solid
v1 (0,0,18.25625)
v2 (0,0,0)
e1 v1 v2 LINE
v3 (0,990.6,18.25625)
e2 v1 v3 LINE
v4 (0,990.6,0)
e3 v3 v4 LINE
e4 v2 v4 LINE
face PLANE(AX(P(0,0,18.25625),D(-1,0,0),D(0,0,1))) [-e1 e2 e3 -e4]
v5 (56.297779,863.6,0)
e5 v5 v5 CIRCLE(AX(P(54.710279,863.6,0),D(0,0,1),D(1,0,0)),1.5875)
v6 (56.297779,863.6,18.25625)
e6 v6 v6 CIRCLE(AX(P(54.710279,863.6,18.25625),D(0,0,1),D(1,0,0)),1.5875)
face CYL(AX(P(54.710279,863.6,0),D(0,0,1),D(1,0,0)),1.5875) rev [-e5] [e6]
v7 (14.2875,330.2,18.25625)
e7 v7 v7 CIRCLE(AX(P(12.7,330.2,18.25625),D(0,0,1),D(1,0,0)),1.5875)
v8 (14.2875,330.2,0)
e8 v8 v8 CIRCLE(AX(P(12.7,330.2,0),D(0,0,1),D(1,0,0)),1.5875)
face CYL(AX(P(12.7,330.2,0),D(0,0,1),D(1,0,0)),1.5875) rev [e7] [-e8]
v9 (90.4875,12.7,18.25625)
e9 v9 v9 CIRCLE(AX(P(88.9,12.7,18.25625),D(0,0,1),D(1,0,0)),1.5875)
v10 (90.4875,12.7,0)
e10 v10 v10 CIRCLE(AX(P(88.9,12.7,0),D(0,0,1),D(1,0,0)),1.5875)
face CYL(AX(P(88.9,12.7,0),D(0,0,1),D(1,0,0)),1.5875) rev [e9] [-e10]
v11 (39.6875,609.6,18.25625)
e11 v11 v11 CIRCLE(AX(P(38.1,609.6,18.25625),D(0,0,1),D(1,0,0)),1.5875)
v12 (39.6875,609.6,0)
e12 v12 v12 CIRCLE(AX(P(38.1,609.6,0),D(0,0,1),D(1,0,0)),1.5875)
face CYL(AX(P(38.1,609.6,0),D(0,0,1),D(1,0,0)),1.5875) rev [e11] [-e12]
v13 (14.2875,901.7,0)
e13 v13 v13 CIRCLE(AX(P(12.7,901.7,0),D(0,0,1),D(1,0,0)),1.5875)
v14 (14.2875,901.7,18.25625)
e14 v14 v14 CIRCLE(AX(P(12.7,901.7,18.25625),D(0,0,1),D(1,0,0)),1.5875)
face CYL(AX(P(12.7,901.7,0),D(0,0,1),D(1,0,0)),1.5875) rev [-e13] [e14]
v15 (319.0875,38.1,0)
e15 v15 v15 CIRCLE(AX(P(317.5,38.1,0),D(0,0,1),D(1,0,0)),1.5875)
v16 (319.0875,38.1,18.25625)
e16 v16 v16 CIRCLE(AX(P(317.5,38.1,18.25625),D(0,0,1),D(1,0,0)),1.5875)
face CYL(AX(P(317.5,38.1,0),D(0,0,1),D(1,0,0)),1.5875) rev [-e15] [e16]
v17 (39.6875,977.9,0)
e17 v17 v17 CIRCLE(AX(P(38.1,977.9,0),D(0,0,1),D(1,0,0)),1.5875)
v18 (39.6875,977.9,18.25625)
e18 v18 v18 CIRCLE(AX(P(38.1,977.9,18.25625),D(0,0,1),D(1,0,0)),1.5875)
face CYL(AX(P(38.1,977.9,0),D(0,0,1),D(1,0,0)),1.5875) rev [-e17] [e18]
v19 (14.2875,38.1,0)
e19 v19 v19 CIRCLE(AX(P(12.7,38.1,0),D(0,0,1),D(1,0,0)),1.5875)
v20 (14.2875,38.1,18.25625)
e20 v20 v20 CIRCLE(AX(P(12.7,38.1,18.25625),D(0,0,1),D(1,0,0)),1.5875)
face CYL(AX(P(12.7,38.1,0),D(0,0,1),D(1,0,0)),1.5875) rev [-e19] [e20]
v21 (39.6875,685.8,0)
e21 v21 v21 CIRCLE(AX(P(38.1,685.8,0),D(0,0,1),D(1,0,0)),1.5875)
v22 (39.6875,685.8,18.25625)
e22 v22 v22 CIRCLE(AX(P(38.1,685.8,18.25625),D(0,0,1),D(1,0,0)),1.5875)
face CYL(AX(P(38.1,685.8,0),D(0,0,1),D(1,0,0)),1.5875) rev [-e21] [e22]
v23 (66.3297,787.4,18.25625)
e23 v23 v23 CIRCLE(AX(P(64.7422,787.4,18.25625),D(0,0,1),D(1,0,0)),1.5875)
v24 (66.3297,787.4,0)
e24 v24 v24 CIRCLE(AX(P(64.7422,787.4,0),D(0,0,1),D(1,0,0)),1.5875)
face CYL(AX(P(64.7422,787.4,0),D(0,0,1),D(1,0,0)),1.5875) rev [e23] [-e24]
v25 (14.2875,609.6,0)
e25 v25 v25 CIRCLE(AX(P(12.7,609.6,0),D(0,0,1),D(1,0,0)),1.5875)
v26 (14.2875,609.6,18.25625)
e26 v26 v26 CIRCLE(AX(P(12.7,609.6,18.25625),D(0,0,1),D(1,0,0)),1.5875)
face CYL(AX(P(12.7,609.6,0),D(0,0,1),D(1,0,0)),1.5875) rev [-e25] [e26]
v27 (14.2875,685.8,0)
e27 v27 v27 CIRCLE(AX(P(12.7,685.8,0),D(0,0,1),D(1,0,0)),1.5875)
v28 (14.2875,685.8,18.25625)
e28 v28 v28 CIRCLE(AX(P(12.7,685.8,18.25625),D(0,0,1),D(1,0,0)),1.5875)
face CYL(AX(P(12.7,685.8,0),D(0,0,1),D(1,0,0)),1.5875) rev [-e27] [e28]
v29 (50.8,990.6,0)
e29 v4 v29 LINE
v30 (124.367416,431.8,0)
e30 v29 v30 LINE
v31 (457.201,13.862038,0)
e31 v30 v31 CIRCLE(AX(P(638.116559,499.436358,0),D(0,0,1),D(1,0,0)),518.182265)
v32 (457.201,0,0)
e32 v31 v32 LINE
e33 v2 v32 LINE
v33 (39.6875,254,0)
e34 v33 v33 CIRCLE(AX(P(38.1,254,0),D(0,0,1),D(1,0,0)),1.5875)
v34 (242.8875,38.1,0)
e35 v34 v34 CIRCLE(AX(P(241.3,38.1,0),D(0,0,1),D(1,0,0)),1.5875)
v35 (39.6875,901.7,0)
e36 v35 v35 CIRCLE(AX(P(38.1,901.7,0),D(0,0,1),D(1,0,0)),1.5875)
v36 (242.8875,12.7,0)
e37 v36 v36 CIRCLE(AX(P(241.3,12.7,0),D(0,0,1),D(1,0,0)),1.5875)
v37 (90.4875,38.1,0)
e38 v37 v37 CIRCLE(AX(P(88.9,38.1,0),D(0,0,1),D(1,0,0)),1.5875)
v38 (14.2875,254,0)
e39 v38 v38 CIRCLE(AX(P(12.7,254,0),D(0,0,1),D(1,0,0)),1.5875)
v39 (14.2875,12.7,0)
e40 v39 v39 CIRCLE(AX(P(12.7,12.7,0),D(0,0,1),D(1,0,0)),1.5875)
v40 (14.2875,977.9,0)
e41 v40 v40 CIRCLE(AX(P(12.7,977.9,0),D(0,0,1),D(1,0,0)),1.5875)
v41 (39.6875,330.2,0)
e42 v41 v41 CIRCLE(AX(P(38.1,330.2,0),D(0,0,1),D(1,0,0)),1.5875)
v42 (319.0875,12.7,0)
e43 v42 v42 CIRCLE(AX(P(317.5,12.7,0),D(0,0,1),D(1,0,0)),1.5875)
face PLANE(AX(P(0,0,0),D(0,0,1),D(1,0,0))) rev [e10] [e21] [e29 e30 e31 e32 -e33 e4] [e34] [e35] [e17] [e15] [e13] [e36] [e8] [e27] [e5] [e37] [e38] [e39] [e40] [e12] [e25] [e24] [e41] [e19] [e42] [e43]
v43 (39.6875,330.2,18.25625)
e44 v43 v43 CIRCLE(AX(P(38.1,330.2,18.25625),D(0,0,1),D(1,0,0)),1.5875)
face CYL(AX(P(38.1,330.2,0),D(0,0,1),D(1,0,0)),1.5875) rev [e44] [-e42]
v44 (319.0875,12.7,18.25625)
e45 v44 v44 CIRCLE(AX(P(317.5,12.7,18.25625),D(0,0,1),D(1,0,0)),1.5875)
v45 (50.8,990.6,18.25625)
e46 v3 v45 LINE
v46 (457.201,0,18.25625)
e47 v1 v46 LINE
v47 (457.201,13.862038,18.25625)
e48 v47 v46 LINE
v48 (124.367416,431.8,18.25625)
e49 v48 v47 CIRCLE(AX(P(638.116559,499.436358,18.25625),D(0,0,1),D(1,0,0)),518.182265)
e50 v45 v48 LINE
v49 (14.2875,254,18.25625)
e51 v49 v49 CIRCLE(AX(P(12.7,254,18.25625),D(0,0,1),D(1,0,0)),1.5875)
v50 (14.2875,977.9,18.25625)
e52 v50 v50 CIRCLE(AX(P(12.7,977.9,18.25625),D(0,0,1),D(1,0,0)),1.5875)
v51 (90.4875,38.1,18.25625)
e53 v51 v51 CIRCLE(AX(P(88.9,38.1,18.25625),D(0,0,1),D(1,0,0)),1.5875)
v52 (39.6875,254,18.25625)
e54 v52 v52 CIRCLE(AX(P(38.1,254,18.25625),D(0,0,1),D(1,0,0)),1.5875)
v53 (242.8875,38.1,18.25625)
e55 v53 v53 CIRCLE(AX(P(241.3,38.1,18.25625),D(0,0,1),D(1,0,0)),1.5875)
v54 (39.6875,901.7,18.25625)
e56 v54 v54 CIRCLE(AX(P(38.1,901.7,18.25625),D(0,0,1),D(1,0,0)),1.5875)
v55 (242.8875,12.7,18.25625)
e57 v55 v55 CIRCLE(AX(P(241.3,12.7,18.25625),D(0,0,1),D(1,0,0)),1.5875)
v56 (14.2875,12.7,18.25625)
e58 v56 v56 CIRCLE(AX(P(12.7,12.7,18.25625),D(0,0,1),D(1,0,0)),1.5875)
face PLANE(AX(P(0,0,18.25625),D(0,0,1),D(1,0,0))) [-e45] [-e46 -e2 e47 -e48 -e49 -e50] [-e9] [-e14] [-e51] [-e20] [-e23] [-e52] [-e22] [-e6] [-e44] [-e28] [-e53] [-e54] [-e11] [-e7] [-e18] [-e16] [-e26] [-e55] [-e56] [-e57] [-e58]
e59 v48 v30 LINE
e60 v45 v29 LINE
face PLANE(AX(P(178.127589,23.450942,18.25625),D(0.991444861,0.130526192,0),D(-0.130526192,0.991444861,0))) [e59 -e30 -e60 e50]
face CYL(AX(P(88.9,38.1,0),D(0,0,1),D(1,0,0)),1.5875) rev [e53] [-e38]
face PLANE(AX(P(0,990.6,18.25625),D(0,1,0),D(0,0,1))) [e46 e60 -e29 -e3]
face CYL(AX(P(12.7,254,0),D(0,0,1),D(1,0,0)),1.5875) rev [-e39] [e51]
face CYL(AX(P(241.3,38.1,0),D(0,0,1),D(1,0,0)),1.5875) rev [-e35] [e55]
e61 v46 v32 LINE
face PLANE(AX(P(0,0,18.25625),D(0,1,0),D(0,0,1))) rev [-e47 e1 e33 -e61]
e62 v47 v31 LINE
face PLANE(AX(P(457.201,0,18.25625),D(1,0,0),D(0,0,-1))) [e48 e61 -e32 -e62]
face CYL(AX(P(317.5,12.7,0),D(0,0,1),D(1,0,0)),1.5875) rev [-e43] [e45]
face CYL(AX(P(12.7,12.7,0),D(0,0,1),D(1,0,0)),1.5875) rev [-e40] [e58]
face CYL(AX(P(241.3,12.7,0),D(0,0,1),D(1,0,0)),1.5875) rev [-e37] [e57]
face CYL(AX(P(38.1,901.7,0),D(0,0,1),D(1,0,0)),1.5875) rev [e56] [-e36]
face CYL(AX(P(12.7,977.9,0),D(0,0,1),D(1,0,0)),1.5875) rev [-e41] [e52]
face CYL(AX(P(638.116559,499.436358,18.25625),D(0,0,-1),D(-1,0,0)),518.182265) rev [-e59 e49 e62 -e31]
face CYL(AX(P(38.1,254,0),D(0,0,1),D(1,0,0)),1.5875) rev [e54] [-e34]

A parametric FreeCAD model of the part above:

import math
import FreeCAD as App
import Part
import Sketcher

V = App.Vector
Q = App.Units.Quantity

doc = App.newDocument("Part")
params = doc.addObject("Spreadsheet::Sheet", "Params")
for row, (alias, value) in enumerate([
    ("sketch1_width", "2 in"),
    ("sketch1_height", "39 in"),
    ("pad1_length", "0.71875 in"),
    ("sketch2_diameter", "0.125 in"),
    ("sketch3_diameter", "0.125 in"),
], start=1):
    params.set(f"A{row}", alias)
    params.set(f"B{row}", "=" + value)
    params.setAlias(f"B{row}", alias)

body = doc.addObject("PartDesign::Body", "Body")

# Sketch on XY plane
sketch1 = body.newObject("Sketcher::SketchObject", "Sketch")
sketch1.AttachmentSupport = (doc.getObject("XY_Plane"), [""])
sketch1.MapMode = "FlatFace"
sketch1.addGeometry(Part.LineSegment(V(0, 990.6, 0), V(0, 0, 0)), False)
sketch1.addGeometry(Part.LineSegment(V(0, 0, 0), V(457.201, 0, 0)), False)
sketch1.addGeometry(Part.LineSegment(V(457.201, 0, 0), V(457.201, 13.862038, 0)), False)
sketch1.addGeometry(Part.ArcOfCircle(Part.Circle(V(638.116559, 499.436358, 0), V(0, 0, 1), 518.182265), math.radians(-172.5), math.radians(-110.434416)), False)
sketch1.addGeometry(Part.LineSegment(V(124.367416, 431.8, 0), V(50.8, 990.6, 0)), False)
sketch1.addGeometry(Part.LineSegment(V(50.8, 990.6, 0), V(0, 990.6, 0)), False)
sketch1.addConstraint(Sketcher.Constraint("Coincident", 0, 2, 1, 1))
sketch1.addConstraint(Sketcher.Constraint("Coincident", 1, 2, 2, 1))
sketch1.addConstraint(Sketcher.Constraint("Coincident", 2, 2, 3, 2))
sketch1.addConstraint(Sketcher.Constraint("Tangent", 3, 1, 4, 1))
sketch1.addConstraint(Sketcher.Constraint("Coincident", 4, 2, 5, 1))
sketch1.addConstraint(Sketcher.Constraint("Coincident", 5, 2, 0, 1))
sketch1.addConstraint(Sketcher.Constraint("Vertical", 0))
sketch1.addConstraint(Sketcher.Constraint("Horizontal", 1))
sketch1.addConstraint(Sketcher.Constraint("Vertical", 2))
sketch1.addConstraint(Sketcher.Constraint("Horizontal", 5))
sketch1.addConstraint(Sketcher.Constraint("Coincident", 0, 2, -1, 1))
sketch1.addConstraint(Sketcher.Constraint("DistanceX", 5, 2, 5, 1, Q("2 in")))
sketch1.addConstraint(Sketcher.Constraint("DistanceY", 0, 2, 0, 1, Q("39 in")))
sketch1.addConstraint(Sketcher.Constraint("Angle", 4, Q("97.5 deg")))
sketch1.addConstraint(Sketcher.Constraint("DistanceX", 1, 1, 1, 2, 457.201))
sketch1.addConstraint(Sketcher.Constraint("Radius", 3, 518.182265))
sketch1.addConstraint(Sketcher.Constraint("DistanceY", 2, 1, 2, 2, 13.862038))
sketch1.setExpression("Constraints[11]", "Params.sketch1_width")
sketch1.setExpression("Constraints[12]", "Params.sketch1_height")
pad1 = body.newObject("PartDesign::Pad", "Pad")
pad1.Profile = sketch1
pad1.setExpression("Length", "Params.pad1_length")

# Sketch on XY plane
sketch2 = body.newObject("Sketcher::SketchObject", "Sketch001")
sketch2.AttachmentSupport = (doc.getObject("XY_Plane"), [""])
sketch2.MapMode = "FlatFace"
sketch2.AttachmentOffset = App.Placement(V(0, 0, 0.71875 * 25.4), App.Rotation())
sketch2.addGeometry(Part.Circle(V(12.7, 977.9, 0), V(0, 0, 1), 1.5875), False)
sketch2.addGeometry(Part.Circle(V(38.1, 977.9, 0), V(0, 0, 1), 1.5875), False)
sketch2.addGeometry(Part.Circle(V(12.7, 901.7, 0), V(0, 0, 1), 1.5875), False)
sketch2.addGeometry(Part.Circle(V(38.1, 901.7, 0), V(0, 0, 1), 1.5875), False)
sketch2.addGeometry(Part.Circle(V(12.7, 609.6, 0), V(0, 0, 1), 1.5875), False)
sketch2.addGeometry(Part.Circle(V(38.1, 609.6, 0), V(0, 0, 1), 1.5875), False)
sketch2.addGeometry(Part.Circle(V(12.7, 685.8, 0), V(0, 0, 1), 1.5875), False)
sketch2.addGeometry(Part.Circle(V(38.1, 685.8, 0), V(0, 0, 1), 1.5875), False)
sketch2.addGeometry(Part.Circle(V(12.7, 254, 0), V(0, 0, 1), 1.5875), False)
sketch2.addGeometry(Part.Circle(V(38.1, 254, 0), V(0, 0, 1), 1.5875), False)
sketch2.addGeometry(Part.Circle(V(12.7, 330.2, 0), V(0, 0, 1), 1.5875), False)
sketch2.addGeometry(Part.Circle(V(38.1, 330.2, 0), V(0, 0, 1), 1.5875), False)
sketch2.addGeometry(Part.Circle(V(12.7, 38.1, 0), V(0, 0, 1), 1.5875), False)
sketch2.addGeometry(Part.Circle(V(12.7, 12.7, 0), V(0, 0, 1), 1.5875), False)
sketch2.addGeometry(Part.Circle(V(88.9, 38.1, 0), V(0, 0, 1), 1.5875), False)
sketch2.addGeometry(Part.Circle(V(88.9, 12.7, 0), V(0, 0, 1), 1.5875), False)
sketch2.addGeometry(Part.Circle(V(241.3, 38.1, 0), V(0, 0, 1), 1.5875), False)
sketch2.addGeometry(Part.Circle(V(317.5, 38.1, 0), V(0, 0, 1), 1.5875), False)
sketch2.addGeometry(Part.Circle(V(241.3, 12.7, 0), V(0, 0, 1), 1.5875), False)
sketch2.addGeometry(Part.Circle(V(317.5, 12.7, 0), V(0, 0, 1), 1.5875), False)
sketch2.addConstraint(Sketcher.Constraint("Equal", 0, 1))
sketch2.addConstraint(Sketcher.Constraint("Equal", 1, 2))
sketch2.addConstraint(Sketcher.Constraint("Equal", 2, 3))
sketch2.addConstraint(Sketcher.Constraint("Equal", 3, 4))
sketch2.addConstraint(Sketcher.Constraint("Equal", 4, 5))
sketch2.addConstraint(Sketcher.Constraint("Equal", 5, 6))
sketch2.addConstraint(Sketcher.Constraint("Equal", 6, 7))
sketch2.addConstraint(Sketcher.Constraint("Equal", 7, 8))
sketch2.addConstraint(Sketcher.Constraint("Equal", 8, 9))
sketch2.addConstraint(Sketcher.Constraint("Equal", 9, 10))
sketch2.addConstraint(Sketcher.Constraint("Equal", 10, 11))
sketch2.addConstraint(Sketcher.Constraint("Equal", 11, 12))
sketch2.addConstraint(Sketcher.Constraint("Equal", 12, 13))
sketch2.addConstraint(Sketcher.Constraint("Equal", 13, 14))
sketch2.addConstraint(Sketcher.Constraint("Equal", 14, 15))
sketch2.addConstraint(Sketcher.Constraint("Equal", 15, 16))
sketch2.addConstraint(Sketcher.Constraint("Equal", 16, 17))
sketch2.addConstraint(Sketcher.Constraint("Equal", 17, 18))
sketch2.addConstraint(Sketcher.Constraint("Equal", 18, 19))
sketch2.addConstraint(Sketcher.Constraint("Horizontal", 0, 3, 1, 3))
sketch2.addConstraint(Sketcher.Constraint("Horizontal", 2, 3, 3, 3))
sketch2.addConstraint(Sketcher.Constraint("Horizontal", 4, 3, 5, 3))
sketch2.addConstraint(Sketcher.Constraint("Horizontal", 6, 3, 7, 3))
sketch2.addConstraint(Sketcher.Constraint("Horizontal", 8, 3, 9, 3))
sketch2.addConstraint(Sketcher.Constraint("Horizontal", 10, 3, 11, 3))
sketch2.addConstraint(Sketcher.Constraint("Horizontal", 12, 3, 14, 3))
sketch2.addConstraint(Sketcher.Constraint("Horizontal", 13, 3, 15, 3))
sketch2.addConstraint(Sketcher.Constraint("Horizontal", 14, 3, 16, 3))
sketch2.addConstraint(Sketcher.Constraint("Horizontal", 16, 3, 17, 3))
sketch2.addConstraint(Sketcher.Constraint("Horizontal", 15, 3, 18, 3))
sketch2.addConstraint(Sketcher.Constraint("Horizontal", 18, 3, 19, 3))
sketch2.addConstraint(Sketcher.Constraint("Vertical", 0, 3, 2, 3))
sketch2.addConstraint(Sketcher.Constraint("Vertical", 1, 3, 3, 3))
sketch2.addConstraint(Sketcher.Constraint("Vertical", 2, 3, 4, 3))
sketch2.addConstraint(Sketcher.Constraint("Vertical", 3, 3, 5, 3))
sketch2.addConstraint(Sketcher.Constraint("Vertical", 4, 3, 6, 3))
sketch2.addConstraint(Sketcher.Constraint("Vertical", 5, 3, 7, 3))
sketch2.addConstraint(Sketcher.Constraint("Vertical", 6, 3, 8, 3))
sketch2.addConstraint(Sketcher.Constraint("Vertical", 7, 3, 9, 3))
sketch2.addConstraint(Sketcher.Constraint("Vertical", 8, 3, 10, 3))
sketch2.addConstraint(Sketcher.Constraint("Vertical", 9, 3, 11, 3))
sketch2.addConstraint(Sketcher.Constraint("Vertical", 10, 3, 12, 3))
sketch2.addConstraint(Sketcher.Constraint("Vertical", 12, 3, 13, 3))
sketch2.addConstraint(Sketcher.Constraint("Vertical", 14, 3, 15, 3))
sketch2.addConstraint(Sketcher.Constraint("Vertical", 16, 3, 18, 3))
sketch2.addConstraint(Sketcher.Constraint("Vertical", 17, 3, 19, 3))
sketch2.addConstraint(Sketcher.Constraint("Diameter", 0, Q("0.125 in")))
sketch2.addConstraint(Sketcher.Constraint("DistanceY", -1, 1, 4, 3, Q("24 in")))
sketch2.addConstraint(Sketcher.Constraint("DistanceY", -1, 1, 6, 3, Q("27 in")))
sketch2.addConstraint(Sketcher.Constraint("DistanceY", -1, 1, 8, 3, Q("10 in")))
sketch2.addConstraint(Sketcher.Constraint("DistanceY", -1, 1, 10, 3, Q("13 in")))
sketch2.addConstraint(Sketcher.Constraint("DistanceX", 0, 3, 1, 3, Q("1 in")))
sketch2.addConstraint(Sketcher.Constraint("DistanceY", 2, 3, 0, 3, Q("3 in")))
sketch2.addConstraint(Sketcher.Constraint("DistanceY", 13, 3, 12, 3, Q("1 in")))
sketch2.addConstraint(Sketcher.Constraint("DistanceX", 12, 3, 14, 3, Q("3 in")))
sketch2.addConstraint(Sketcher.Constraint("DistanceX", 14, 3, 16, 3, Q("6 in")))
sketch2.addConstraint(Sketcher.Constraint("DistanceX", 16, 3, 17, 3, Q("3 in")))
sketch2.addConstraint(Sketcher.Constraint("DistanceX", -1, 1, 0, 3, Q("0.5 in")))
sketch2.addConstraint(Sketcher.Constraint("DistanceY", -1, 1, 0, 3, Q("38.5 in")))
sketch2.addConstraint(Sketcher.Constraint("DistanceY", -1, 1, 12, 3, Q("1.5 in")))
sketch2.setExpression("Constraints[46]", "Params.sketch2_diameter")
pocket1 = body.newObject("PartDesign::Pocket", "Pocket")
pocket1.Profile = sketch2
pocket1.Type = "ThroughAll"

# Sketch on XY plane
sketch3 = body.newObject("Sketcher::SketchObject", "Sketch002")
sketch3.AttachmentSupport = (doc.getObject("XY_Plane"), [""])
sketch3.MapMode = "FlatFace"
sketch3.AttachmentOffset = App.Placement(V(0, 0, 0.71875 * 25.4), App.Rotation())
sketch3.addGeometry(Part.Circle(V(64.7422, 787.4, 0), V(0, 0, 1), 1.5875), False)
sketch3.addGeometry(Part.Circle(V(54.710279, 863.6, 0), V(0, 0, 1), 1.5875), False)
sketch3.addConstraint(Sketcher.Constraint("Equal", 0, 1))
sketch3.addConstraint(Sketcher.Constraint("Diameter", 0, Q("0.125 in")))
sketch3.addConstraint(Sketcher.Constraint("DistanceY", -1, 1, 0, 3, Q("31 in")))
sketch3.addConstraint(Sketcher.Constraint("DistanceY", -1, 1, 1, 3, Q("34 in")))
sketch3.addConstraint(Sketcher.Constraint("DistanceX", -1, 1, 0, 3, 64.7422))
sketch3.addConstraint(Sketcher.Constraint("DistanceX", -1, 1, 1, 3, 54.710279))
sketch3.setExpression("Constraints[1]", "Params.sketch3_diameter")
pocket2 = body.newObject("PartDesign::Pocket", "Pocket001")
pocket2.Profile = sketch3
pocket2.Type = "ThroughAll"

doc.recompute()
